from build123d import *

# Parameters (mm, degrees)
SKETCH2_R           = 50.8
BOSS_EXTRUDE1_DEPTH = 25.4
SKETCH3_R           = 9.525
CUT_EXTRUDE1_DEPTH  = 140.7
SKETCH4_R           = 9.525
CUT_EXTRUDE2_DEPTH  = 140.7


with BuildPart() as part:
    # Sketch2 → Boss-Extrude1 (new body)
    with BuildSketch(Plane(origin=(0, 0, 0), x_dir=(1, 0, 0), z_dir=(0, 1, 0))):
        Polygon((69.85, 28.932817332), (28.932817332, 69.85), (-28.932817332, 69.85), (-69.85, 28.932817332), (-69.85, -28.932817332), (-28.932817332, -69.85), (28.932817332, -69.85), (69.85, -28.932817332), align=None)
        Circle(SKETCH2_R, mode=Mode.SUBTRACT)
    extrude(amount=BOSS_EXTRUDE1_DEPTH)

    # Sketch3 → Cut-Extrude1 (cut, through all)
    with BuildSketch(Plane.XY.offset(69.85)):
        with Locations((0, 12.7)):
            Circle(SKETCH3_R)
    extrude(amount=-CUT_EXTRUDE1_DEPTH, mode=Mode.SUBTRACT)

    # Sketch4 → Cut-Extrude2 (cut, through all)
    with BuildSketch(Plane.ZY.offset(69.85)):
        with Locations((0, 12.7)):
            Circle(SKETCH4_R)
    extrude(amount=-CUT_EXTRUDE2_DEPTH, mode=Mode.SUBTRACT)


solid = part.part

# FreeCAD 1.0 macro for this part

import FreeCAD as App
import Part
import Sketcher
from FreeCAD import Vector
Q = App.Units.Quantity


def add_polygon(sketch, points):
    """Adds a closed chain of lines whose ends are joined by coincident constraints."""
    first, n = sketch.GeometryCount, len(points)
    for a, b in zip(points, points[1:] + points[:1]):
        sketch.addGeometry(Part.LineSegment(App.Vector(*a, 0), App.Vector(*b, 0)), False)
    for i in range(n):
        sketch.addConstraint(Sketcher.Constraint("Coincident", first + i, 2, first + (i + 1) % n, 1))

doc = App.newDocument("Part")
params = doc.addObject("Spreadsheet::Sheet", "Params")
for row, (alias, value) in enumerate([
    ("sketch1_diameter", "4 in"),
    ("pad1_length", "1 in"),
    ("sketch2_diameter", "0.75 in"),
    ("sketch3_diameter", "0.75 in"),
], start=1):
    params.set(f"A{row}", alias)
    params.set(f"B{row}", "=" + value)
    params.setAlias(f"B{row}", alias)

body = doc.addObject("PartDesign::Body", "Body")

# Sketch on XZ plane
sketch1 = body.newObject("Sketcher::SketchObject", "Sketch")
sketch1.AttachmentSupport = (doc.getObject("XZ_Plane"), [""])
sketch1.MapMode = "FlatFace"
add_polygon(sketch1, [(69.85, -28.932817), (28.932817, -69.85), (-28.932817, -69.85), (-69.85, -28.932817), (-69.85, 28.932817), (-28.932817, 69.85), (28.932817, 69.85), (69.85, 28.932817)])  # lines 0-7
sketch1.addGeometry(Part.Circle(Vector(0, 0, 0), Vector(0, 0, 1), 50.8), False)  # 8
sketch1.addConstraint(Sketcher.Constraint("Horizontal", 1))
sketch1.addConstraint(Sketcher.Constraint("Vertical", 3))
sketch1.addConstraint(Sketcher.Constraint("Horizontal", 5))
sketch1.addConstraint(Sketcher.Constraint("Vertical", 7))
sketch1.addConstraint(Sketcher.Constraint("Coincident", 8, 3, -1, 1))
sketch1.addConstraint(Sketcher.Constraint("Symmetric", 0, 2, 4, 2, -1, 1))
sketch1.addConstraint(Sketcher.Constraint("Symmetric", 2, 2, 6, 2, -1, 1))
sketch1.addConstraint(Sketcher.Constraint("Perpendicular", 0, 2))
sketch1.addConstraint(Sketcher.Constraint("Perpendicular", 2, 4))
sketch1.addConstraint(Sketcher.Constraint("Perpendicular", 4, 6))
sketch1.addConstraint(Sketcher.Constraint("Horizontal", 3, 2, 6, 2))
sketch1.addConstraint(Sketcher.Constraint("Vertical", 1, 2, 4, 2))
sketch1.addConstraint(Sketcher.Constraint("Equal", 5, 3))
sketch1.addConstraint(Sketcher.Constraint("Diameter", 8, Q("4 in")))
sketch1.addConstraint(Sketcher.Constraint("DistanceY", 1, 2, 4, 2, Q("5.5 in")))
sketch1.addConstraint(Sketcher.Constraint("DistanceX", 1, 2, 1, 1, 57.865635))
sketch1.setExpression("Constraints[21]", "Params.sketch1_diameter")
pad1 = body.newObject("PartDesign::Pad", "Pad")
pad1.Profile = sketch1
pad1.setExpression("Length", "Params.pad1_length")
pad1.Reversed = True

# Sketch on XY plane
sketch2 = body.newObject("Sketcher::SketchObject", "Sketch001")
sketch2.AttachmentSupport = (doc.getObject("XY_Plane"), [""])
sketch2.MapMode = "FlatFace"
sketch2.AttachmentOffset = App.Placement(Vector(0, 0, 2.75 * 25.4), App.Rotation())
sketch2.addGeometry(Part.Circle(Vector(0, 12.7, 0), Vector(0, 0, 1), 9.525), False)
sketch2.addConstraint(Sketcher.Constraint("PointOnObject", 0, 3, -2))
sketch2.addConstraint(Sketcher.Constraint("Diameter", 0, Q("0.75 in")))
sketch2.addConstraint(Sketcher.Constraint("DistanceY", -1, 1, 0, 3, Q("0.5 in")))
sketch2.setExpression("Constraints[1]", "Params.sketch2_diameter")
pocket1 = body.newObject("PartDesign::Pocket", "Pocket")
pocket1.Profile = sketch2
pocket1.Type = "ThroughAll"

# Sketch on YZ plane
sketch3 = body.newObject("Sketcher::SketchObject", "Sketch002")
sketch3.AttachmentSupport = (doc.getObject("YZ_Plane"), [""])
sketch3.MapMode = "FlatFace"
sketch3.AttachmentOffset = App.Placement(Vector(0, 0, -2.75 * 25.4), App.Rotation())
sketch3.addGeometry(Part.Circle(Vector(12.7, 0, 0), Vector(0, 0, 1), 9.525), False)
sketch3.addConstraint(Sketcher.Constraint("PointOnObject", 0, 3, -1))
sketch3.addConstraint(Sketcher.Constraint("Diameter", 0, Q("0.75 in")))
sketch3.addConstraint(Sketcher.Constraint("DistanceX", -1, 1, 0, 3, Q("0.5 in")))
sketch3.setExpression("Constraints[1]", "Params.sketch3_diameter")
pocket2 = body.newObject("PartDesign::Pocket", "Pocket001")
pocket2.Profile = sketch3
pocket2.Type = "ThroughAll"
pocket2.Reversed = True

doc.recompute()
